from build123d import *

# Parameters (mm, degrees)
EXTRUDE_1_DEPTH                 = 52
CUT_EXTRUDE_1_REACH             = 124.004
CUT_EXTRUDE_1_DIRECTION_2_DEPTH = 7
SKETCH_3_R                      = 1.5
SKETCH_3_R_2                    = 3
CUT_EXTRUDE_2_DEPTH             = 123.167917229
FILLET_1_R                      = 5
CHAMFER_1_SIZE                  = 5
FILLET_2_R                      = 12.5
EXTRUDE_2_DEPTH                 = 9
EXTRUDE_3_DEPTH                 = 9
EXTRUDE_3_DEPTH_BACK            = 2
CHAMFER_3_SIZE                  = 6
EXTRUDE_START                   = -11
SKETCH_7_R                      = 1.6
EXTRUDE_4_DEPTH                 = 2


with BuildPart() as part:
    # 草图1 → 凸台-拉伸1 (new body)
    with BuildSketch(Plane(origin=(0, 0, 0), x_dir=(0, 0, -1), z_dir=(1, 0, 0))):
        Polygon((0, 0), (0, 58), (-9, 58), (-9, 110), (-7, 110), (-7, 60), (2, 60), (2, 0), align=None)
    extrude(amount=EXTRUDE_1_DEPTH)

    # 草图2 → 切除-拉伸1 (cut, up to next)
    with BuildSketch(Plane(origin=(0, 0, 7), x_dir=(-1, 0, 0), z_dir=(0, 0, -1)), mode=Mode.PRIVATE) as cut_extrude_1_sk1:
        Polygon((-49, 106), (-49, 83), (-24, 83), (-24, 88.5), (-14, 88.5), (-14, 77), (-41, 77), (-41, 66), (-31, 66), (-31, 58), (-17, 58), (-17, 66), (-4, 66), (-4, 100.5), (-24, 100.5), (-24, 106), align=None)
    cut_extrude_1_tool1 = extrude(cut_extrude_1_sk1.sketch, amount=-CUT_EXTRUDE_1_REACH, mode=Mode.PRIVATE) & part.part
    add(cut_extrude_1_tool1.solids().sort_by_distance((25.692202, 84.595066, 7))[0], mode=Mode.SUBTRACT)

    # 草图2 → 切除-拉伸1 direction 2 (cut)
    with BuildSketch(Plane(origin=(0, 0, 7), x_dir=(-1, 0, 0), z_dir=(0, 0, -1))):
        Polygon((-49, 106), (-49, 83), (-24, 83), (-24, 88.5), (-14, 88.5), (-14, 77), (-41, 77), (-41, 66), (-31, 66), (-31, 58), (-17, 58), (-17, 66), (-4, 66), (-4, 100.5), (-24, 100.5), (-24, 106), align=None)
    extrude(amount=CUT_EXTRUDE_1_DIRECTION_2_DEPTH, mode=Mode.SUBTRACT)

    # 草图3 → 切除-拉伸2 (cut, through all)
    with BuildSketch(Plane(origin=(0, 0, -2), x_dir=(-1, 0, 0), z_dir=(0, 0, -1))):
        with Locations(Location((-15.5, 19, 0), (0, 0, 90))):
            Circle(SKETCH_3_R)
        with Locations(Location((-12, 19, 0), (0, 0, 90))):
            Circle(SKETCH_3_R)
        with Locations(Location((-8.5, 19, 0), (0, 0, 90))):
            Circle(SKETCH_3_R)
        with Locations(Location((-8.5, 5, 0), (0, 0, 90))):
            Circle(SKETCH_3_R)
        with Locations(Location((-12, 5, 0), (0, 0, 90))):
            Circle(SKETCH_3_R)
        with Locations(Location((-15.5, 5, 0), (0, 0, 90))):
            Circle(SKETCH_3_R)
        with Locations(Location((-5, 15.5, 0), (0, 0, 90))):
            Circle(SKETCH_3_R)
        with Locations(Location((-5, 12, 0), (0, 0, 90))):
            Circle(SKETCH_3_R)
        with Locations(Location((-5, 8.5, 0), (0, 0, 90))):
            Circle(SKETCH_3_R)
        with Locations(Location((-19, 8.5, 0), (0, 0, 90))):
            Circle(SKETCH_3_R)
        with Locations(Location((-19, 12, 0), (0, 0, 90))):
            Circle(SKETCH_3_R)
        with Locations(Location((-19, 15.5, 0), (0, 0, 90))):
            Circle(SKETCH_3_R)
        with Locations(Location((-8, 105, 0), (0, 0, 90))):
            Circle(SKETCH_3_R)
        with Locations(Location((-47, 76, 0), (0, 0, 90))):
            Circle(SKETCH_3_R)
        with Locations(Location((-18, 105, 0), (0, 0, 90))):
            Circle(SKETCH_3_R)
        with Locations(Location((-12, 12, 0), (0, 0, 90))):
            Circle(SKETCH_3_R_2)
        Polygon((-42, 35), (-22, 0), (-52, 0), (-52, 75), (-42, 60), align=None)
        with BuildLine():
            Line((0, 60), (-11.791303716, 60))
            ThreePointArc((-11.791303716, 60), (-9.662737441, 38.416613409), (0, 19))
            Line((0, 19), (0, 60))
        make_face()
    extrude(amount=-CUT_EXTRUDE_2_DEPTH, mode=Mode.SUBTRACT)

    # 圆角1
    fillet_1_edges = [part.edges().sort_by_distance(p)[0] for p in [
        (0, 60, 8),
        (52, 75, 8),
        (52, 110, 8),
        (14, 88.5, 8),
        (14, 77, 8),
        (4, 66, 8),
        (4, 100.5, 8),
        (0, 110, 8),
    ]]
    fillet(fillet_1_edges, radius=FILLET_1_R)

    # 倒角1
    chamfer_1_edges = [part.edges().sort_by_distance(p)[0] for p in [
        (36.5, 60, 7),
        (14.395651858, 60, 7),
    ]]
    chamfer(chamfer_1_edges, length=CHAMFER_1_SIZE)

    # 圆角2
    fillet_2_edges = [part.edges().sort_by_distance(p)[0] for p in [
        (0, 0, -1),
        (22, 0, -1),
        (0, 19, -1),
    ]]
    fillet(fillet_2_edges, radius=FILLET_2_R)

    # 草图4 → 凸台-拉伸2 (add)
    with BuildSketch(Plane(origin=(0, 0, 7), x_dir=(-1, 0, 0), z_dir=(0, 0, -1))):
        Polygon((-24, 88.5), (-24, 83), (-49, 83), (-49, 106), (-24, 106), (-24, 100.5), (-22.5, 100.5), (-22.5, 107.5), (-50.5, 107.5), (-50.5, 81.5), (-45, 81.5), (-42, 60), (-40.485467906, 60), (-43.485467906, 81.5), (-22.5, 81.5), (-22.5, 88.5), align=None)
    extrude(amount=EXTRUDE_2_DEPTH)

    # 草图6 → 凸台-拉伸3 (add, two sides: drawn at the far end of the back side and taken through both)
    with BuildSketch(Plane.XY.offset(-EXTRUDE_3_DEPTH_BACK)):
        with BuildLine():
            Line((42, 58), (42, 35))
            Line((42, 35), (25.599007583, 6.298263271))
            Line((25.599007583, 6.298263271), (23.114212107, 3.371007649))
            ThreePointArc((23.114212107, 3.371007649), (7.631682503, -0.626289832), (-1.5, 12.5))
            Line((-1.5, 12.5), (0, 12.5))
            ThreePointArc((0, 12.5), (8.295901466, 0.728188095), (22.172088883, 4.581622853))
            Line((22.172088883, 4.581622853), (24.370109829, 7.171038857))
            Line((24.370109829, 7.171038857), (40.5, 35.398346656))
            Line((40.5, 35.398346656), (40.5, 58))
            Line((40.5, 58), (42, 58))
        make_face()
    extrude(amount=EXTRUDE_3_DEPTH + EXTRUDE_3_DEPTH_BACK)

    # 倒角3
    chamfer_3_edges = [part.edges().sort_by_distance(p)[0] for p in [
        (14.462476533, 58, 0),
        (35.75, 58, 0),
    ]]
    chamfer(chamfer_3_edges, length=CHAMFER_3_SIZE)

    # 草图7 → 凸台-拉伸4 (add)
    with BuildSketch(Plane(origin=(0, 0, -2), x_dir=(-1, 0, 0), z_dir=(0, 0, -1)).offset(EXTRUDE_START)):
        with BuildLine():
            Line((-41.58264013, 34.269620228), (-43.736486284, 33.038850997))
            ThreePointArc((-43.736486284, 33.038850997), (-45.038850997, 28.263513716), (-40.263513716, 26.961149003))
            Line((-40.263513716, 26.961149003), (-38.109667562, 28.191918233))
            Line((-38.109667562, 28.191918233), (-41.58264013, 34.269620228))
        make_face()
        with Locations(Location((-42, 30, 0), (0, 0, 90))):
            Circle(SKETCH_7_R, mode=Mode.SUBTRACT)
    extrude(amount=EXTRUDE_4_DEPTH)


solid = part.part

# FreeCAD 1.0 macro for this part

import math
import FreeCAD as App
import Part
import Sketcher

V = App.Vector
Q = App.Units.Quantity


def edges_at(feature, points):
    """Names of the edges that pass closest to the given points."""
    edges = feature.Shape.Edges
    near = lambda p: min(range(len(edges)), key=lambda i: edges[i].distToShape(Part.Vertex(*p))[0])
    return sorted({f"Edge{near(p) + 1}" for p in points})

doc = App.newDocument("Part")
params = doc.addObject("Spreadsheet::Sheet", "Params")
for row, (alias, value) in enumerate([
    ("sketch1_width", "58 mm"),
    ("sketch1_width2", "60 mm"),
    ("sketch1_width3", "50 mm"),
    ("sketch1_height", "2 mm"),
    ("sketch1_height2", "9 mm"),
    ("pad1_length", "52 mm"),
    ("sketch2_width", "25 mm"),
    ("sketch2_width2", "10 mm"),
    ("sketch2_width3", "27 mm"),
    ("sketch2_width4", "14 mm"),
    ("sketch2_width5", "13 mm"),
    ("sketch3_width", "25 mm"),
    ("sketch3_width2", "10 mm"),
    ("sketch3_width3", "27 mm"),
    ("sketch3_width4", "14 mm"),
    ("sketch3_width5", "13 mm"),
    ("pocket2_length", "7 mm"),
    ("sketch4_diameter", "3 mm"),
    ("sketch4_diameter2", "6 mm"),
    ("sketch4_radius", "60 mm"),
    ("sketch4_width", "30 mm"),
    ("sketch4_height", "25 mm"),
    ("fillet_radius", "5 mm"),
    ("chamfer_size", "5 mm"),
    ("fillet2_radius", "12.5 mm"),
    ("sketch5_width", "25 mm"),
    ("sketch5_width2", "28 mm"),
    ("sketch5_height", "23 mm"),
    ("sketch5_height2", "7 mm"),
    ("sketch5_height3", "26 mm"),
    ("pad2_length", "9 mm"),
    ("sketch6_radius", "14 mm"),
    ("sketch6_radius2", "12.5 mm"),
    ("sketch6_height", "23 mm"),
    ("pad3_length", "9 mm"),
    ("pad3_length2", "2 mm"),
    ("chamfer2_size", "6 mm"),
    ("sketch7_diameter", "3.2 mm"),
    ("sketch7_radius", "3.5 mm"),
    ("pad4_length", "2 mm"),
], start=1):
    params.set(f"A{row}", alias)
    params.set(f"B{row}", "=" + value)
    params.setAlias(f"B{row}", alias)

body = doc.addObject("PartDesign::Body", "Body")

sketch1 = body.newObject("Sketcher::SketchObject", "Sketch")
sketch1.AttachmentSupport = (doc.getObject("YZ_Plane"), [""])
sketch1.MapMode = "FlatFace"
sketch1.addGeometry(Part.LineSegment(V(58, 0, 0), V(0, 0, 0)), False)
sketch1.addGeometry(Part.LineSegment(V(0, 0, 0), V(0, -2, 0)), False)
sketch1.addGeometry(Part.LineSegment(V(0, -2, 0), V(60, -2, 0)), False)
sketch1.addGeometry(Part.LineSegment(V(60, -2, 0), V(60, 7, 0)), False)
sketch1.addGeometry(Part.LineSegment(V(60, 7, 0), V(110, 7, 0)), False)
sketch1.addGeometry(Part.LineSegment(V(110, 7, 0), V(110, 9, 0)), False)
sketch1.addGeometry(Part.LineSegment(V(110, 9, 0), V(58, 9, 0)), False)
sketch1.addGeometry(Part.LineSegment(V(58, 9, 0), V(58, 0, 0)), False)
sketch1.addConstraint(Sketcher.Constraint("Coincident", 0, 2, 1, 1))
sketch1.addConstraint(Sketcher.Constraint("Coincident", 1, 2, 2, 1))
sketch1.addConstraint(Sketcher.Constraint("Coincident", 2, 2, 3, 1))
sketch1.addConstraint(Sketcher.Constraint("Coincident", 3, 2, 4, 1))
sketch1.addConstraint(Sketcher.Constraint("Coincident", 4, 2, 5, 1))
sketch1.addConstraint(Sketcher.Constraint("Coincident", 5, 2, 6, 1))
sketch1.addConstraint(Sketcher.Constraint("Coincident", 6, 2, 7, 1))
sketch1.addConstraint(Sketcher.Constraint("Coincident", 7, 2, 0, 1))
sketch1.addConstraint(Sketcher.Constraint("Horizontal", 0))
sketch1.addConstraint(Sketcher.Constraint("Vertical", 1))
sketch1.addConstraint(Sketcher.Constraint("Horizontal", 2))
sketch1.addConstraint(Sketcher.Constraint("Vertical", 3))
sketch1.addConstraint(Sketcher.Constraint("Horizontal", 4))
sketch1.addConstraint(Sketcher.Constraint("Vertical", 5))
sketch1.addConstraint(Sketcher.Constraint("Horizontal", 6))
sketch1.addConstraint(Sketcher.Constraint("Vertical", 7))
sketch1.addConstraint(Sketcher.Constraint("Coincident", 0, 2, -1, 1))
sketch1.addConstraint(Sketcher.Constraint("Equal", 1, 5))
sketch1.addConstraint(Sketcher.Constraint("DistanceX", 0, 2, 0, 1, Q("58 mm")))
sketch1.addConstraint(Sketcher.Constraint("DistanceX", 2, 1, 2, 2, Q("60 mm")))
sketch1.addConstraint(Sketcher.Constraint("DistanceX", 4, 1, 4, 2, Q("50 mm")))
sketch1.addConstraint(Sketcher.Constraint("DistanceY", 1, 2, 1, 1, Q("2 mm")))
sketch1.addConstraint(Sketcher.Constraint("DistanceY", 3, 1, 3, 2, Q("9 mm")))
sketch1.setExpression("Constraints[18]", "Params.sketch1_width")
sketch1.setExpression("Constraints[19]", "Params.sketch1_width2")
sketch1.setExpression("Constraints[20]", "Params.sketch1_width3")
sketch1.setExpression("Constraints[21]", "Params.sketch1_height")
sketch1.setExpression("Constraints[22]", "Params.sketch1_height2")
pad1 = body.newObject("PartDesign::Pad", "Pad")
pad1.Profile = sketch1
pad1.setExpression("Length", "Params.pad1_length")

sketch2 = body.newObject("Sketcher::SketchObject", "Sketch001")
sketch2.AttachmentSupport = (doc.getObject("XY_Plane"), [""])
sketch2.MapMode = "FlatFace"
sketch2.AttachmentOffset = App.Placement(V(0, 0, 7), App.Rotation())
sketch2.addGeometry(Part.LineSegment(V(49, 106, 0), V(49, 83, 0)), False)
sketch2.addGeometry(Part.LineSegment(V(49, 83, 0), V(24, 83, 0)), False)
sketch2.addGeometry(Part.LineSegment(V(24, 83, 0), V(24, 88, 0)), False)
sketch2.addGeometry(Part.LineSegment(V(24, 88, 0), V(14, 88, 0)), False)
sketch2.addGeometry(Part.LineSegment(V(14, 88, 0), V(14, 77, 0)), False)
sketch2.addGeometry(Part.LineSegment(V(14, 77, 0), V(41, 77, 0)), False)
sketch2.addGeometry(Part.LineSegment(V(41, 77, 0), V(41, 66, 0)), False)
sketch2.addGeometry(Part.LineSegment(V(41, 66, 0), V(31, 66, 0)), False)
sketch2.addGeometry(Part.LineSegment(V(31, 66, 0), V(31, 58, 0)), False)
sketch2.addGeometry(Part.LineSegment(V(31, 58, 0), V(17, 58, 0)), False)
sketch2.addGeometry(Part.LineSegment(V(17, 58, 0), V(17, 66, 0)), False)
sketch2.addGeometry(Part.LineSegment(V(17, 66, 0), V(4, 66, 0)), False)
sketch2.addGeometry(Part.LineSegment(V(4, 66, 0), V(4, 100, 0)), False)
sketch2.addGeometry(Part.LineSegment(V(4, 100, 0), V(24, 100, 0)), False)
sketch2.addGeometry(Part.LineSegment(V(24, 100, 0), V(24, 106, 0)), False)
sketch2.addGeometry(Part.LineSegment(V(24, 106, 0), V(49, 106, 0)), False)
sketch2.addConstraint(Sketcher.Constraint("Coincident", 0, 2, 1, 1))
sketch2.addConstraint(Sketcher.Constraint("Coincident", 1, 2, 2, 1))
sketch2.addConstraint(Sketcher.Constraint("Coincident", 2, 2, 3, 1))
sketch2.addConstraint(Sketcher.Constraint("Coincident", 3, 2, 4, 1))
sketch2.addConstraint(Sketcher.Constraint("Coincident", 4, 2, 5, 1))
sketch2.addConstraint(Sketcher.Constraint("Coincident", 5, 2, 6, 1))
sketch2.addConstraint(Sketcher.Constraint("Coincident", 6, 2, 7, 1))
sketch2.addConstraint(Sketcher.Constraint("Coincident", 7, 2, 8, 1))
sketch2.addConstraint(Sketcher.Constraint("Coincident", 8, 2, 9, 1))
sketch2.addConstraint(Sketcher.Constraint("Coincident", 9, 2, 10, 1))
sketch2.addConstraint(Sketcher.Constraint("Coincident", 10, 2, 11, 1))
sketch2.addConstraint(Sketcher.Constraint("Coincident", 11, 2, 12, 1))
sketch2.addConstraint(Sketcher.Constraint("Coincident", 12, 2, 13, 1))
sketch2.addConstraint(Sketcher.Constraint("Coincident", 13, 2, 14, 1))
sketch2.addConstraint(Sketcher.Constraint("Coincident", 14, 2, 15, 1))
sketch2.addConstraint(Sketcher.Constraint("Coincident", 15, 2, 0, 1))
sketch2.addConstraint(Sketcher.Constraint("Vertical", 0))
sketch2.addConstraint(Sketcher.Constraint("Horizontal", 1))
sketch2.addConstraint(Sketcher.Constraint("Vertical", 2))
sketch2.addConstraint(Sketcher.Constraint("Horizontal", 3))
sketch2.addConstraint(Sketcher.Constraint("Vertical", 4))
sketch2.addConstraint(Sketcher.Constraint("Horizontal", 5))
sketch2.addConstraint(Sketcher.Constraint("Vertical", 6))
sketch2.addConstraint(Sketcher.Constraint("Horizontal", 7))
sketch2.addConstraint(Sketcher.Constraint("Vertical", 8))
sketch2.addConstraint(Sketcher.Constraint("Horizontal", 9))
sketch2.addConstraint(Sketcher.Constraint("Vertical", 10))
sketch2.addConstraint(Sketcher.Constraint("Horizontal", 11))
sketch2.addConstraint(Sketcher.Constraint("Vertical", 12))
sketch2.addConstraint(Sketcher.Constraint("Horizontal", 13))
sketch2.addConstraint(Sketcher.Constraint("Vertical", 14))
sketch2.addConstraint(Sketcher.Constraint("Horizontal", 15))
sketch2.addConstraint(Sketcher.Constraint("Horizontal", 7, 2, 10, 2))
sketch2.addConstraint(Sketcher.Constraint("Vertical", 2, 2, 13, 2))
sketch2.addConstraint(Sketcher.Constraint("Equal", 3, 7))
sketch2.addConstraint(Sketcher.Constraint("Equal", 2, 14))
sketch2.addConstraint(Sketcher.Constraint("DistanceX", 1, 2, 1, 1, Q("25 mm")))
sketch2.addConstraint(Sketcher.Constraint("DistanceX", 3, 2, 3, 1, Q("10 mm")))
sketch2.addConstraint(Sketcher.Constraint("DistanceX", 5, 1, 5, 2, Q("27 mm")))
sketch2.addConstraint(Sketcher.Constraint("DistanceX", 9, 2, 9, 1, Q("14 mm")))
sketch2.addConstraint(Sketcher.Constraint("DistanceX", 11, 2, 11, 1, Q("13 mm")))
sketch2.addConstraint(Sketcher.Constraint("DistanceY", 0, 2, 0, 1, Q("23 mm")))
sketch2.addConstraint(Sketcher.Constraint("DistanceY", 6, 2, 6, 1, Q("11 mm")))
sketch2.addConstraint(Sketcher.Constraint("DistanceY", 8, 2, 8, 1, Q("8 mm")))
sketch2.addConstraint(Sketcher.Constraint("DistanceY", 2, 1, 2, 2, Q("5.5 mm")))
sketch2.addConstraint(Sketcher.Constraint("DistanceY", 4, 2, 4, 1, Q("11.5 mm")))
sketch2.addConstraint(Sketcher.Constraint("DistanceX", -1, 1, 0, 2, Q("49 mm")))
sketch2.addConstraint(Sketcher.Constraint("DistanceY", -1, 1, 0, 2, Q("83 mm")))
sketch2.setExpression("Constraints[36]", "Params.sketch2_width")
sketch2.setExpression("Constraints[37]", "Params.sketch2_width2")
sketch2.setExpression("Constraints[38]", "Params.sketch2_width3")
sketch2.setExpression("Constraints[39]", "Params.sketch2_width4")
sketch2.setExpression("Constraints[40]", "Params.sketch2_width5")
pocket1 = body.newObject("PartDesign::Pocket", "Pocket")
pocket1.Profile = sketch2
pocket1.Type = "UpToFirst"
pocket1.Reversed = True

sketch3 = body.newObject("Sketcher::SketchObject", "Sketch002")
sketch3.AttachmentSupport = (doc.getObject("XY_Plane"), [""])
sketch3.MapMode = "FlatFace"
sketch3.AttachmentOffset = App.Placement(V(0, 0, 7), App.Rotation())
sketch3.addGeometry(Part.LineSegment(V(49, 106, 0), V(49, 83, 0)), False)
sketch3.addGeometry(Part.LineSegment(V(49, 83, 0), V(24, 83, 0)), False)
sketch3.addGeometry(Part.LineSegment(V(24, 83, 0), V(24, 88, 0)), False)
sketch3.addGeometry(Part.LineSegment(V(24, 88, 0), V(14, 88, 0)), False)
sketch3.addGeometry(Part.LineSegment(V(14, 88, 0), V(14, 77, 0)), False)
sketch3.addGeometry(Part.LineSegment(V(14, 77, 0), V(41, 77, 0)), False)
sketch3.addGeometry(Part.LineSegment(V(41, 77, 0), V(41, 66, 0)), False)
sketch3.addGeometry(Part.LineSegment(V(41, 66, 0), V(31, 66, 0)), False)
sketch3.addGeometry(Part.LineSegment(V(31, 66, 0), V(31, 58, 0)), False)
sketch3.addGeometry(Part.LineSegment(V(31, 58, 0), V(17, 58, 0)), False)
sketch3.addGeometry(Part.LineSegment(V(17, 58, 0), V(17, 66, 0)), False)
sketch3.addGeometry(Part.LineSegment(V(17, 66, 0), V(4, 66, 0)), False)
sketch3.addGeometry(Part.LineSegment(V(4, 66, 0), V(4, 100, 0)), False)
sketch3.addGeometry(Part.LineSegment(V(4, 100, 0), V(24, 100, 0)), False)
sketch3.addGeometry(Part.LineSegment(V(24, 100, 0), V(24, 106, 0)), False)
sketch3.addGeometry(Part.LineSegment(V(24, 106, 0), V(49, 106, 0)), False)
sketch3.addConstraint(Sketcher.Constraint("Coincident", 0, 2, 1, 1))
sketch3.addConstraint(Sketcher.Constraint("Coincident", 1, 2, 2, 1))
sketch3.addConstraint(Sketcher.Constraint("Coincident", 2, 2, 3, 1))
sketch3.addConstraint(Sketcher.Constraint("Coincident", 3, 2, 4, 1))
sketch3.addConstraint(Sketcher.Constraint("Coincident", 4, 2, 5, 1))
sketch3.addConstraint(Sketcher.Constraint("Coincident", 5, 2, 6, 1))
sketch3.addConstraint(Sketcher.Constraint("Coincident", 6, 2, 7, 1))
sketch3.addConstraint(Sketcher.Constraint("Coincident", 7, 2, 8, 1))
sketch3.addConstraint(Sketcher.Constraint("Coincident", 8, 2, 9, 1))
sketch3.addConstraint(Sketcher.Constraint("Coincident", 9, 2, 10, 1))
sketch3.addConstraint(Sketcher.Constraint("Coincident", 10, 2, 11, 1))
sketch3.addConstraint(Sketcher.Constraint("Coincident", 11, 2, 12, 1))
sketch3.addConstraint(Sketcher.Constraint("Coincident", 12, 2, 13, 1))
sketch3.addConstraint(Sketcher.Constraint("Coincident", 13, 2, 14, 1))
sketch3.addConstraint(Sketcher.Constraint("Coincident", 14, 2, 15, 1))
sketch3.addConstraint(Sketcher.Constraint("Coincident", 15, 2, 0, 1))
sketch3.addConstraint(Sketcher.Constraint("Vertical", 0))
sketch3.addConstraint(Sketcher.Constraint("Horizontal", 1))
sketch3.addConstraint(Sketcher.Constraint("Vertical", 2))
sketch3.addConstraint(Sketcher.Constraint("Horizontal", 3))
sketch3.addConstraint(Sketcher.Constraint("Vertical", 4))
sketch3.addConstraint(Sketcher.Constraint("Horizontal", 5))
sketch3.addConstraint(Sketcher.Constraint("Vertical", 6))
sketch3.addConstraint(Sketcher.Constraint("Horizontal", 7))
sketch3.addConstraint(Sketcher.Constraint("Vertical", 8))
sketch3.addConstraint(Sketcher.Constraint("Horizontal", 9))
sketch3.addConstraint(Sketcher.Constraint("Vertical", 10))
sketch3.addConstraint(Sketcher.Constraint("Horizontal", 11))
sketch3.addConstraint(Sketcher.Constraint("Vertical", 12))
sketch3.addConstraint(Sketcher.Constraint("Horizontal", 13))
sketch3.addConstraint(Sketcher.Constraint("Vertical", 14))
sketch3.addConstraint(Sketcher.Constraint("Horizontal", 15))
sketch3.addConstraint(Sketcher.Constraint("Horizontal", 7, 2, 10, 2))
sketch3.addConstraint(Sketcher.Constraint("Vertical", 2, 2, 13, 2))
sketch3.addConstraint(Sketcher.Constraint("Equal", 3, 7))
sketch3.addConstraint(Sketcher.Constraint("Equal", 2, 14))
sketch3.addConstraint(Sketcher.Constraint("DistanceX", 1, 2, 1, 1, Q("25 mm")))
sketch3.addConstraint(Sketcher.Constraint("DistanceX", 3, 2, 3, 1, Q("10 mm")))
sketch3.addConstraint(Sketcher.Constraint("DistanceX", 5, 1, 5, 2, Q("27 mm")))
sketch3.addConstraint(Sketcher.Constraint("DistanceX", 9, 2, 9, 1, Q("14 mm")))
sketch3.addConstraint(Sketcher.Constraint("DistanceX", 11, 2, 11, 1, Q("13 mm")))
sketch3.addConstraint(Sketcher.Constraint("DistanceY", 0, 2, 0, 1, Q("23 mm")))
sketch3.addConstraint(Sketcher.Constraint("DistanceY", 6, 2, 6, 1, Q("11 mm")))
sketch3.addConstraint(Sketcher.Constraint("DistanceY", 8, 2, 8, 1, Q("8 mm")))
sketch3.addConstraint(Sketcher.Constraint("DistanceY", 2, 1, 2, 2, Q("5.5 mm")))
sketch3.addConstraint(Sketcher.Constraint("DistanceY", 4, 2, 4, 1, Q("11.5 mm")))
sketch3.addConstraint(Sketcher.Constraint("DistanceX", -1, 1, 0, 2, Q("49 mm")))
sketch3.addConstraint(Sketcher.Constraint("DistanceY", -1, 1, 0, 2, Q("83 mm")))
sketch3.setExpression("Constraints[36]", "Params.sketch3_width")
sketch3.setExpression("Constraints[37]", "Params.sketch3_width2")
sketch3.setExpression("Constraints[38]", "Params.sketch3_width3")
sketch3.setExpression("Constraints[39]", "Params.sketch3_width4")
sketch3.setExpression("Constraints[40]", "Params.sketch3_width5")
pocket2 = body.newObject("PartDesign::Pocket", "Pocket001")
pocket2.Profile = sketch3
pocket2.setExpression("Length", "Params.pocket2_length")

sketch4 = body.newObject("Sketcher::SketchObject", "Sketch003")
sketch4.AttachmentSupport = (doc.getObject("XY_Plane"), [""])
sketch4.MapMode = "FlatFace"
sketch4.AttachmentOffset = App.Placement(V(0, 0, -2), App.Rotation())
sketch4.addGeometry(Part.Circle(V(15.5, 19, 0), V(0, 0, 1), 1.5), False)
sketch4.addGeometry(Part.Circle(V(12, 19, 0), V(0, 0, 1), 1.5), False)
sketch4.addGeometry(Part.Circle(V(8.5, 19, 0), V(0, 0, 1), 1.5), False)
sketch4.addGeometry(Part.Circle(V(8.5, 5, 0), V(0, 0, 1), 1.5), False)
sketch4.addGeometry(Part.Circle(V(12, 5, 0), V(0, 0, 1), 1.5), False)
sketch4.addGeometry(Part.Circle(V(15.5, 5, 0), V(0, 0, 1), 1.5), False)
sketch4.addGeometry(Part.Circle(V(5, 15.5, 0), V(0, 0, 1), 1.5), False)
sketch4.addGeometry(Part.Circle(V(5, 12, 0), V(0, 0, 1), 1.5), False)
sketch4.addGeometry(Part.Circle(V(5, 8.5, 0), V(0, 0, 1), 1.5), False)
sketch4.addGeometry(Part.Circle(V(19, 8.5, 0), V(0, 0, 1), 1.5), False)
sketch4.addGeometry(Part.Circle(V(19, 12, 0), V(0, 0, 1), 1.5), False)
sketch4.addGeometry(Part.Circle(V(19, 15.5, 0), V(0, 0, 1), 1.5), False)
sketch4.addGeometry(Part.Circle(V(8, 105, 0), V(0, 0, 1), 1.5), False)
sketch4.addGeometry(Part.Circle(V(47, 76, 0), V(0, 0, 1), 1.5), False)
sketch4.addGeometry(Part.Circle(V(18, 105, 0), V(0, 0, 1), 1.5), False)
sketch4.addGeometry(Part.Circle(V(12, 12, 0), V(0, 0, 1), 3), False)
sketch4.addGeometry(Part.LineSegment(V(22, 0, 0), V(42, 35, 0)), False)
sketch4.addGeometry(Part.LineSegment(V(42, 35, 0), V(42, 60, 0)), False)
sketch4.addGeometry(Part.LineSegment(V(42, 60, 0), V(52, 75, 0)), False)
sketch4.addGeometry(Part.LineSegment(V(52, 75, 0), V(52, 0, 0)), False)
sketch4.addGeometry(Part.LineSegment(V(52, 0, 0), V(22, 0, 0)), False)
sketch4.addGeometry(Part.LineSegment(V(0, 60, 0), V(11.8, 60, 0)), False)
sketch4.addGeometry(Part.ArcOfCircle(Part.Circle(V(-48, 55, 0), V(0, 0, 1), 60), math.radians(-37), math.radians(5)), False)
sketch4.addGeometry(Part.LineSegment(V(0, 19, 0), V(0, 60, 0)), False)
sketch4.addConstraint(Sketcher.Constraint("Coincident", 16, 2, 17, 1))
sketch4.addConstraint(Sketcher.Constraint("Coincident", 17, 2, 18, 1))
sketch4.addConstraint(Sketcher.Constraint("Coincident", 18, 2, 19, 1))
sketch4.addConstraint(Sketcher.Constraint("Coincident", 19, 2, 20, 1))
sketch4.addConstraint(Sketcher.Constraint("Coincident", 20, 2, 16, 1))
sketch4.addConstraint(Sketcher.Constraint("Coincident", 21, 2, 22, 2))
sketch4.addConstraint(Sketcher.Constraint("Coincident", 22, 1, 23, 1))
sketch4.addConstraint(Sketcher.Constraint("Coincident", 23, 2, 21, 1))
sketch4.addConstraint(Sketcher.Constraint("Vertical", 17))
sketch4.addConstraint(Sketcher.Constraint("Vertical", 19))
sketch4.addConstraint(Sketcher.Constraint("Horizontal", 20))
sketch4.addConstraint(Sketcher.Constraint("Horizontal", 21))
sketch4.addConstraint(Sketcher.Constraint("Vertical", 23))
sketch4.addConstraint(Sketcher.Constraint("Equal", 0, 1))
sketch4.addConstraint(Sketcher.Constraint("Equal", 1, 2))
sketch4.addConstraint(Sketcher.Constraint("Equal", 2, 3))
sketch4.addConstraint(Sketcher.Constraint("Equal", 3, 4))
sketch4.addConstraint(Sketcher.Constraint("Equal", 4, 5))
sketch4.addConstraint(Sketcher.Constraint("Equal", 5, 6))
sketch4.addConstraint(Sketcher.Constraint("Equal", 6, 7))
sketch4.addConstraint(Sketcher.Constraint("Equal", 7, 8))
sketch4.addConstraint(Sketcher.Constraint("Equal", 8, 9))
sketch4.addConstraint(Sketcher.Constraint("Equal", 9, 10))
sketch4.addConstraint(Sketcher.Constraint("Equal", 10, 11))
sketch4.addConstraint(Sketcher.Constraint("Equal", 11, 12))
sketch4.addConstraint(Sketcher.Constraint("Equal", 12, 13))
sketch4.addConstraint(Sketcher.Constraint("Equal", 13, 14))
sketch4.addConstraint(Sketcher.Constraint("PointOnObject", 19, 2, -1))
sketch4.addConstraint(Sketcher.Constraint("PointOnObject", 22, 1, -2))
sketch4.addConstraint(Sketcher.Constraint("Horizontal", 0, 3, 1, 3))
sketch4.addConstraint(Sketcher.Constraint("Horizontal", 1, 3, 2, 3))
sketch4.addConstraint(Sketcher.Constraint("Horizontal", 3, 3, 4, 3))
sketch4.addConstraint(Sketcher.Constraint("Horizontal", 4, 3, 5, 3))
sketch4.addConstraint(Sketcher.Constraint("Horizontal", 8, 3, 9, 3))
sketch4.addConstraint(Sketcher.Constraint("Horizontal", 7, 3, 10, 3))
sketch4.addConstraint(Sketcher.Constraint("Horizontal", 6, 3, 11, 3))
sketch4.addConstraint(Sketcher.Constraint("Horizontal", 12, 3, 14, 3))
sketch4.addConstraint(Sketcher.Constraint("Horizontal", 10, 3, 15, 3))
sketch4.addConstraint(Sketcher.Constraint("Horizontal", 17, 2, 21, 2))
sketch4.addConstraint(Sketcher.Constraint("Horizontal", 2, 3, 22, 1))
sketch4.addConstraint(Sketcher.Constraint("Vertical", 2, 3, 3, 3))
sketch4.addConstraint(Sketcher.Constraint("Vertical", 1, 3, 4, 3))
sketch4.addConstraint(Sketcher.Constraint("Vertical", 0, 3, 5, 3))
sketch4.addConstraint(Sketcher.Constraint("Vertical", 6, 3, 7, 3))
sketch4.addConstraint(Sketcher.Constraint("Vertical", 7, 3, 8, 3))
sketch4.addConstraint(Sketcher.Constraint("Vertical", 9, 3, 10, 3))
sketch4.addConstraint(Sketcher.Constraint("Vertical", 10, 3, 11, 3))
sketch4.addConstraint(Sketcher.Constraint("Vertical", 4, 3, 15, 3))
sketch4.addConstraint(Sketcher.Constraint("Diameter", 0, Q("3 mm")))
sketch4.addConstraint(Sketcher.Constraint("Diameter", 15, Q("6 mm")))
sketch4.addConstraint(Sketcher.Constraint("Radius", 22, Q("60 mm")))
sketch4.addConstraint(Sketcher.Constraint("DistanceX", 20, 2, 20, 1, Q("30 mm")))
sketch4.addConstraint(Sketcher.Constraint("DistanceY", 17, 1, 17, 2, Q("25 mm")))
sketch4.addConstraint(Sketcher.Constraint("DistanceY", 19, 2, 19, 1, Q("75 mm")))
sketch4.addConstraint(Sketcher.Constraint("DistanceY", 23, 1, 23, 2, Q("41 mm")))
sketch4.addConstraint(Sketcher.Constraint("DistanceY", -1, 1, 0, 3, Q("19 mm")))
sketch4.addConstraint(Sketcher.Constraint("DistanceX", -1, 1, 1, 3, Q("12 mm")))
sketch4.addConstraint(Sketcher.Constraint("DistanceY", -1, 1, 3, 3, Q("5 mm")))
sketch4.addConstraint(Sketcher.Constraint("DistanceX", -1, 1, 6, 3, Q("5 mm")))
sketch4.addConstraint(Sketcher.Constraint("DistanceY", -1, 1, 7, 3, Q("12 mm")))
sketch4.addConstraint(Sketcher.Constraint("DistanceX", -1, 1, 9, 3, Q("19 mm")))
sketch4.addConstraint(Sketcher.Constraint("DistanceX", -1, 1, 12, 3, Q("8 mm")))
sketch4.addConstraint(Sketcher.Constraint("DistanceY", -1, 1, 12, 3, Q("105 mm")))
sketch4.addConstraint(Sketcher.Constraint("DistanceX", -1, 1, 13, 3, Q("47 mm")))
sketch4.addConstraint(Sketcher.Constraint("DistanceY", -1, 1, 13, 3, Q("76 mm")))
sketch4.addConstraint(Sketcher.Constraint("DistanceX", -1, 1, 14, 3, Q("18 mm")))
sketch4.addConstraint(Sketcher.Constraint("DistanceX", 22, 3, -1, 1, Q("48 mm")))
sketch4.addConstraint(Sketcher.Constraint("DistanceX", -1, 1, 16, 2, Q("42 mm")))
sketch4.addConstraint(Sketcher.Constraint("DistanceX", -1, 1, 18, 2, Q("52 mm")))
sketch4.addConstraint(Sketcher.Constraint("DistanceX", 2, 3, 0, 3, Q("7 mm")))
sketch4.addConstraint(Sketcher.Constraint("DistanceY", 8, 3, 6, 3, Q("7 mm")))
sketch4.addConstraint(Sketcher.Constraint("DistanceX", -1, 1, 0, 3, Q("15.5 mm")))
sketch4.addConstraint(Sketcher.Constraint("DistanceY", -1, 1, 6, 3, Q("15.5 mm")))
sketch4.setExpression("Constraints[48]", "Params.sketch4_diameter")
sketch4.setExpression("Constraints[49]", "Params.sketch4_diameter2")
sketch4.setExpression("Constraints[50]", "Params.sketch4_radius")
sketch4.setExpression("Constraints[51]", "Params.sketch4_width")
sketch4.setExpression("Constraints[52]", "Params.sketch4_height")
pocket3 = body.newObject("PartDesign::Pocket", "Pocket002")
pocket3.Profile = sketch4
pocket3.Type = "ThroughAll"
pocket3.Reversed = True
doc.recompute()

fillet = body.newObject("PartDesign::Fillet", "Fillet")
fillet.Base = (pocket3, edges_at(pocket3, [
    (0, 60, 8),
    (52, 75, 8),
    (52, 110, 8),
    (14, 88.5, 8),
    (14, 77, 8),
    (4, 66, 8),
    (4, 100.5, 8),
    (0, 110, 8),
]))
fillet.setExpression("Radius", "Params.fillet_radius")
doc.recompute()

chamfer = body.newObject("PartDesign::Chamfer", "Chamfer")
chamfer.Base = (fillet, edges_at(fillet, [(36.5, 60, 7), (14.396, 60, 7)]))
chamfer.setExpression("Size", "Params.chamfer_size")
doc.recompute()

fillet2 = body.newObject("PartDesign::Fillet", "Fillet001")
fillet2.Base = (chamfer, edges_at(chamfer, [(0, 0, -1), (22, 0, -1), (0, 19, -1)]))
fillet2.setExpression("Radius", "Params.fillet2_radius")

sketch5 = body.newObject("Sketcher::SketchObject", "Sketch004")
sketch5.AttachmentSupport = (doc.getObject("XY_Plane"), [""])
sketch5.MapMode = "FlatFace"
sketch5.AttachmentOffset = App.Placement(V(0, 0, 7), App.Rotation())
sketch5.addGeometry(Part.LineSegment(V(24, 88.5, 0), V(24, 83, 0)), False)
sketch5.addGeometry(Part.LineSegment(V(24, 83, 0), V(49, 83, 0)), False)
sketch5.addGeometry(Part.LineSegment(V(49, 83, 0), V(49, 106, 0)), False)
sketch5.addGeometry(Part.LineSegment(V(49, 106, 0), V(24, 106, 0)), False)
sketch5.addGeometry(Part.LineSegment(V(24, 106, 0), V(24, 100.5, 0)), False)
sketch5.addGeometry(Part.LineSegment(V(24, 100.5, 0), V(22.5, 100.5, 0)), False)
sketch5.addGeometry(Part.LineSegment(V(22.5, 100.5, 0), V(22.5, 107.5, 0)), False)
sketch5.addGeometry(Part.LineSegment(V(22.5, 107.5, 0), V(50.5, 107.5, 0)), False)
sketch5.addGeometry(Part.LineSegment(V(50.5, 107.5, 0), V(50.5, 81.5, 0)), False)
sketch5.addGeometry(Part.LineSegment(V(50.5, 81.5, 0), V(45, 81.5, 0)), False)
sketch5.addGeometry(Part.LineSegment(V(45, 81.5, 0), V(42, 60, 0)), False)
sketch5.addGeometry(Part.LineSegment(V(42, 60, 0), V(40.5, 60, 0)), False)
sketch5.addGeometry(Part.LineSegment(V(40.5, 60, 0), V(43.5, 81.5, 0)), False)
sketch5.addGeometry(Part.LineSegment(V(43.5, 81.5, 0), V(22.5, 81.5, 0)), False)
sketch5.addGeometry(Part.LineSegment(V(22.5, 81.5, 0), V(22.5, 88.5, 0)), False)
sketch5.addGeometry(Part.LineSegment(V(22.5, 88.5, 0), V(24, 88.5, 0)), False)
sketch5.addConstraint(Sketcher.Constraint("Coincident", 0, 2, 1, 1))
sketch5.addConstraint(Sketcher.Constraint("Coincident", 1, 2, 2, 1))
sketch5.addConstraint(Sketcher.Constraint("Coincident", 2, 2, 3, 1))
sketch5.addConstraint(Sketcher.Constraint("Coincident", 3, 2, 4, 1))
sketch5.addConstraint(Sketcher.Constraint("Coincident", 4, 2, 5, 1))
sketch5.addConstraint(Sketcher.Constraint("Coincident", 5, 2, 6, 1))
sketch5.addConstraint(Sketcher.Constraint("Coincident", 6, 2, 7, 1))
sketch5.addConstraint(Sketcher.Constraint("Coincident", 7, 2, 8, 1))
sketch5.addConstraint(Sketcher.Constraint("Coincident", 8, 2, 9, 1))
sketch5.addConstraint(Sketcher.Constraint("Coincident", 9, 2, 10, 1))
sketch5.addConstraint(Sketcher.Constraint("Coincident", 10, 2, 11, 1))
sketch5.addConstraint(Sketcher.Constraint("Coincident", 11, 2, 12, 1))
sketch5.addConstraint(Sketcher.Constraint("Coincident", 12, 2, 13, 1))
sketch5.addConstraint(Sketcher.Constraint("Coincident", 13, 2, 14, 1))
sketch5.addConstraint(Sketcher.Constraint("Coincident", 14, 2, 15, 1))
sketch5.addConstraint(Sketcher.Constraint("Coincident", 15, 2, 0, 1))
sketch5.addConstraint(Sketcher.Constraint("Vertical", 0))
sketch5.addConstraint(Sketcher.Constraint("Horizontal", 1))
sketch5.addConstraint(Sketcher.Constraint("Vertical", 2))
sketch5.addConstraint(Sketcher.Constraint("Horizontal", 3))
sketch5.addConstraint(Sketcher.Constraint("Vertical", 4))
sketch5.addConstraint(Sketcher.Constraint("Horizontal", 5))
sketch5.addConstraint(Sketcher.Constraint("Vertical", 6))
sketch5.addConstraint(Sketcher.Constraint("Horizontal", 7))
sketch5.addConstraint(Sketcher.Constraint("Vertical", 8))
sketch5.addConstraint(Sketcher.Constraint("Horizontal", 9))
sketch5.addConstraint(Sketcher.Constraint("Horizontal", 11))
sketch5.addConstraint(Sketcher.Constraint("Horizontal", 13))
sketch5.addConstraint(Sketcher.Constraint("Vertical", 14))
sketch5.addConstraint(Sketcher.Constraint("Horizontal", 15))
sketch5.addConstraint(Sketcher.Constraint("Parallel", 10, 12))
sketch5.addConstraint(Sketcher.Constraint("Horizontal", 9, 2, 12, 2))
sketch5.addConstraint(Sketcher.Constraint("Vertical", 0, 2, 3, 2))
sketch5.addConstraint(Sketcher.Constraint("Vertical", 6, 2, 13, 2))
sketch5.addConstraint(Sketcher.Constraint("Equal", 9, 0))
sketch5.addConstraint(Sketcher.Constraint("Equal", 0, 4))
sketch5.addConstraint(Sketcher.Constraint("Equal", 6, 14))
sketch5.addConstraint(Sketcher.Constraint("DistanceX", 1, 1, 1, 2, Q("25 mm")))
sketch5.addConstraint(Sketcher.Constraint("DistanceX", 7, 1, 7, 2, Q("28 mm")))
sketch5.addConstraint(Sketcher.Constraint("DistanceY", 2, 1, 2, 2, Q("23 mm")))
sketch5.addConstraint(Sketcher.Constraint("DistanceY", 6, 1, 6, 2, Q("7 mm")))
sketch5.addConstraint(Sketcher.Constraint("DistanceY", 8, 2, 8, 1, Q("26 mm")))
sketch5.addConstraint(Sketcher.Constraint("DistanceX", 5, 2, 5, 1, Q("1.5 mm")))
sketch5.addConstraint(Sketcher.Constraint("DistanceX", -1, 1, 0, 2, Q("24 mm")))
sketch5.addConstraint(Sketcher.Constraint("DistanceY", -1, 1, 0, 2, Q("83 mm")))
sketch5.addConstraint(Sketcher.Constraint("DistanceX", -1, 1, 10, 2, Q("42 mm")))
sketch5.addConstraint(Sketcher.Constraint("DistanceY", -1, 1, 10, 2, Q("60 mm")))
sketch5.addConstraint(Sketcher.Constraint("DistanceX", 11, 2, 11, 1, Q("1.514532 mm")))
sketch5.setExpression("Constraints[37]", "Params.sketch5_width")
sketch5.setExpression("Constraints[38]", "Params.sketch5_width2")
sketch5.setExpression("Constraints[39]", "Params.sketch5_height")
sketch5.setExpression("Constraints[40]", "Params.sketch5_height2")
sketch5.setExpression("Constraints[41]", "Params.sketch5_height3")
pad2 = body.newObject("PartDesign::Pad", "Pad001")
pad2.Profile = sketch5
pad2.setExpression("Length", "Params.pad2_length")
pad2.Reversed = True

sketch6 = body.newObject("Sketcher::SketchObject", "Sketch005")
sketch6.AttachmentSupport = (doc.getObject("XY_Plane"), [""])
sketch6.MapMode = "FlatFace"
sketch6.addGeometry(Part.LineSegment(V(42, 35, 0), V(42, 58, 0)), False)
sketch6.addGeometry(Part.LineSegment(V(42, 58, 0), V(40.5, 58, 0)), False)
sketch6.addGeometry(Part.LineSegment(V(40.5, 58, 0), V(40.5, 35.4, 0)), False)
sketch6.addGeometry(Part.LineSegment(V(40.5, 35.4, 0), V(24.4, 7.2, 0)), False)
sketch6.addGeometry(Part.LineSegment(V(24.4, 7.2, 0), V(22.2, 4.6, 0)), False)
sketch6.addGeometry(Part.ArcOfCircle(Part.Circle(V(12.5, 12.5, 0), V(0, 0, 1), 12.5), math.radians(180), math.radians(321)), False)
sketch6.addGeometry(Part.LineSegment(V(0, 12.5, 0), V(-1.5, 12.5, 0)), False)
sketch6.addGeometry(Part.ArcOfCircle(Part.Circle(V(12.5, 12.5, 0), V(0, 0, 1), 14), math.radians(180), math.radians(319)), False)
sketch6.addGeometry(Part.LineSegment(V(23.1, 3.4, 0), V(25.6, 6.3, 0)), False)
sketch6.addGeometry(Part.LineSegment(V(25.6, 6.3, 0), V(42, 35, 0)), False)
sketch6.addConstraint(Sketcher.Constraint("Coincident", 0, 2, 1, 1))
sketch6.addConstraint(Sketcher.Constraint("Coincident", 1, 2, 2, 1))
sketch6.addConstraint(Sketcher.Constraint("Coincident", 2, 2, 3, 1))
sketch6.addConstraint(Sketcher.Constraint("Coincident", 3, 2, 4, 1))
sketch6.addConstraint(Sketcher.Constraint("Coincident", 4, 2, 5, 2))
sketch6.addConstraint(Sketcher.Constraint("Coincident", 5, 1, 6, 1))
sketch6.addConstraint(Sketcher.Constraint("Coincident", 6, 2, 7, 1))
sketch6.addConstraint(Sketcher.Constraint("Coincident", 7, 2, 8, 1))
sketch6.addConstraint(Sketcher.Constraint("Coincident", 8, 2, 9, 1))
sketch6.addConstraint(Sketcher.Constraint("Coincident", 9, 2, 0, 1))
sketch6.addConstraint(Sketcher.Constraint("Vertical", 0))
sketch6.addConstraint(Sketcher.Constraint("Horizontal", 1))
sketch6.addConstraint(Sketcher.Constraint("Vertical", 2))
sketch6.addConstraint(Sketcher.Constraint("Horizontal", 6))
sketch6.addConstraint(Sketcher.Constraint("Coincident", 7, 3, 5, 3))
sketch6.addConstraint(Sketcher.Constraint("PointOnObject", 5, 1, -2))
sketch6.addConstraint(Sketcher.Constraint("Parallel", 4, 8))
sketch6.addConstraint(Sketcher.Constraint("Parallel", 3, 9))
sketch6.addConstraint(Sketcher.Constraint("Horizontal", 7, 3, 5, 1))
sketch6.addConstraint(Sketcher.Constraint("Equal", 1, 6))
sketch6.addConstraint(Sketcher.Constraint("Radius", 7, Q("14 mm")))
sketch6.addConstraint(Sketcher.Constraint("Radius", 5, Q("12.5 mm")))
sketch6.addConstraint(Sketcher.Constraint("DistanceY", 0, 1, 0, 2, Q("23 mm")))
sketch6.addConstraint(Sketcher.Constraint("DistanceX", -1, 1, 0, 2, Q("42 mm")))
sketch6.addConstraint(Sketcher.Constraint("DistanceY", -1, 1, 0, 2, Q("58 mm")))
sketch6.addConstraint(Sketcher.Constraint("DistanceY", -1, 1, 5, 3, Q("12.5 mm")))
sketch6.addConstraint(Sketcher.Constraint("DistanceY", 2, 2, 2, 1, Q("22.601653 mm")))
sketch6.addConstraint(Sketcher.Constraint("DistanceX", -1, 1, 3, 2, Q("24.37011 mm")))
sketch6.addConstraint(Sketcher.Constraint("DistanceY", -1, 1, 3, 2, Q("7.171039 mm")))
sketch6.addConstraint(Sketcher.Constraint("DistanceX", -1, 1, 4, 2, Q("22.172089 mm")))
sketch6.addConstraint(Sketcher.Constraint("DistanceY", 7, 2, 3, 2, Q("3.800031 mm")))
sketch6.setExpression("Constraints[20]", "Params.sketch6_radius")
sketch6.setExpression("Constraints[21]", "Params.sketch6_radius2")
sketch6.setExpression("Constraints[22]", "Params.sketch6_height")
pad3 = body.newObject("PartDesign::Pad", "Pad002")
pad3.Profile = sketch6
pad3.Type = "TwoLengths"
pad3.setExpression("Length", "Params.pad3_length")
pad3.setExpression("Length2", "Params.pad3_length2")
doc.recompute()

chamfer2 = body.newObject("PartDesign::Chamfer", "Chamfer001")
chamfer2.Base = (pad3, edges_at(pad3, [(14.462, 58, 0), (35.75, 58, 0)]))
chamfer2.setExpression("Size", "Params.chamfer2_size")

sketch7 = body.newObject("Sketcher::SketchObject", "Sketch006")
sketch7.AttachmentSupport = (doc.getObject("XY_Plane"), [""])
sketch7.MapMode = "FlatFace"
sketch7.AttachmentOffset = App.Placement(V(0, 0, 9), App.Rotation())
sketch7.addGeometry(Part.LineSegment(V(41.6, 34.3, 0), V(43.7, 33, 0)), False)
sketch7.addGeometry(Part.ArcOfCircle(Part.Circle(V(42, 30, 0), V(0, 0, 1), 3.5), math.radians(-120), math.radians(60)), False)
sketch7.addGeometry(Part.LineSegment(V(40.3, 27, 0), V(38.1, 28.2, 0)), False)
sketch7.addGeometry(Part.LineSegment(V(38.1, 28.2, 0), V(41.6, 34.3, 0)), False)
sketch7.addGeometry(Part.Circle(V(42, 30, 0), V(0, 0, 1), 1.6), False)
sketch7.addConstraint(Sketcher.Constraint("Tangent", 0, 2, 1, 2))
sketch7.addConstraint(Sketcher.Constraint("Tangent", 1, 1, 2, 1))
sketch7.addConstraint(Sketcher.Constraint("Coincident", 2, 2, 3, 1))
sketch7.addConstraint(Sketcher.Constraint("Coincident", 3, 2, 0, 1))
sketch7.addConstraint(Sketcher.Constraint("Coincident", 4, 3, 1, 3))
sketch7.addConstraint(Sketcher.Constraint("Parallel", 0, 2))
sketch7.addConstraint(Sketcher.Constraint("Perpendicular", 2, 3))
sketch7.addConstraint(Sketcher.Constraint("Diameter", 4, Q("3.2 mm")))
sketch7.addConstraint(Sketcher.Constraint("Radius", 1, Q("3.5 mm")))
sketch7.addConstraint(Sketcher.Constraint("DistanceX", -1, 1, 1, 3, Q("42 mm")))
sketch7.addConstraint(Sketcher.Constraint("DistanceY", -1, 1, 1, 3, Q("30 mm")))
sketch7.addConstraint(Sketcher.Constraint("DistanceY", 1, 1, 0, 2, Q("6.077702 mm")))
sketch7.addConstraint(Sketcher.Constraint("DistanceY", -1, 1, 2, 2, Q("28.191918 mm")))
sketch7.setExpression("Constraints[7]", "Params.sketch7_diameter")
sketch7.setExpression("Constraints[8]", "Params.sketch7_radius")
pad4 = body.newObject("PartDesign::Pad", "Pad003")
pad4.Profile = sketch7
pad4.setExpression("Length", "Params.pad4_length")
pad4.Reversed = True

doc.recompute()
